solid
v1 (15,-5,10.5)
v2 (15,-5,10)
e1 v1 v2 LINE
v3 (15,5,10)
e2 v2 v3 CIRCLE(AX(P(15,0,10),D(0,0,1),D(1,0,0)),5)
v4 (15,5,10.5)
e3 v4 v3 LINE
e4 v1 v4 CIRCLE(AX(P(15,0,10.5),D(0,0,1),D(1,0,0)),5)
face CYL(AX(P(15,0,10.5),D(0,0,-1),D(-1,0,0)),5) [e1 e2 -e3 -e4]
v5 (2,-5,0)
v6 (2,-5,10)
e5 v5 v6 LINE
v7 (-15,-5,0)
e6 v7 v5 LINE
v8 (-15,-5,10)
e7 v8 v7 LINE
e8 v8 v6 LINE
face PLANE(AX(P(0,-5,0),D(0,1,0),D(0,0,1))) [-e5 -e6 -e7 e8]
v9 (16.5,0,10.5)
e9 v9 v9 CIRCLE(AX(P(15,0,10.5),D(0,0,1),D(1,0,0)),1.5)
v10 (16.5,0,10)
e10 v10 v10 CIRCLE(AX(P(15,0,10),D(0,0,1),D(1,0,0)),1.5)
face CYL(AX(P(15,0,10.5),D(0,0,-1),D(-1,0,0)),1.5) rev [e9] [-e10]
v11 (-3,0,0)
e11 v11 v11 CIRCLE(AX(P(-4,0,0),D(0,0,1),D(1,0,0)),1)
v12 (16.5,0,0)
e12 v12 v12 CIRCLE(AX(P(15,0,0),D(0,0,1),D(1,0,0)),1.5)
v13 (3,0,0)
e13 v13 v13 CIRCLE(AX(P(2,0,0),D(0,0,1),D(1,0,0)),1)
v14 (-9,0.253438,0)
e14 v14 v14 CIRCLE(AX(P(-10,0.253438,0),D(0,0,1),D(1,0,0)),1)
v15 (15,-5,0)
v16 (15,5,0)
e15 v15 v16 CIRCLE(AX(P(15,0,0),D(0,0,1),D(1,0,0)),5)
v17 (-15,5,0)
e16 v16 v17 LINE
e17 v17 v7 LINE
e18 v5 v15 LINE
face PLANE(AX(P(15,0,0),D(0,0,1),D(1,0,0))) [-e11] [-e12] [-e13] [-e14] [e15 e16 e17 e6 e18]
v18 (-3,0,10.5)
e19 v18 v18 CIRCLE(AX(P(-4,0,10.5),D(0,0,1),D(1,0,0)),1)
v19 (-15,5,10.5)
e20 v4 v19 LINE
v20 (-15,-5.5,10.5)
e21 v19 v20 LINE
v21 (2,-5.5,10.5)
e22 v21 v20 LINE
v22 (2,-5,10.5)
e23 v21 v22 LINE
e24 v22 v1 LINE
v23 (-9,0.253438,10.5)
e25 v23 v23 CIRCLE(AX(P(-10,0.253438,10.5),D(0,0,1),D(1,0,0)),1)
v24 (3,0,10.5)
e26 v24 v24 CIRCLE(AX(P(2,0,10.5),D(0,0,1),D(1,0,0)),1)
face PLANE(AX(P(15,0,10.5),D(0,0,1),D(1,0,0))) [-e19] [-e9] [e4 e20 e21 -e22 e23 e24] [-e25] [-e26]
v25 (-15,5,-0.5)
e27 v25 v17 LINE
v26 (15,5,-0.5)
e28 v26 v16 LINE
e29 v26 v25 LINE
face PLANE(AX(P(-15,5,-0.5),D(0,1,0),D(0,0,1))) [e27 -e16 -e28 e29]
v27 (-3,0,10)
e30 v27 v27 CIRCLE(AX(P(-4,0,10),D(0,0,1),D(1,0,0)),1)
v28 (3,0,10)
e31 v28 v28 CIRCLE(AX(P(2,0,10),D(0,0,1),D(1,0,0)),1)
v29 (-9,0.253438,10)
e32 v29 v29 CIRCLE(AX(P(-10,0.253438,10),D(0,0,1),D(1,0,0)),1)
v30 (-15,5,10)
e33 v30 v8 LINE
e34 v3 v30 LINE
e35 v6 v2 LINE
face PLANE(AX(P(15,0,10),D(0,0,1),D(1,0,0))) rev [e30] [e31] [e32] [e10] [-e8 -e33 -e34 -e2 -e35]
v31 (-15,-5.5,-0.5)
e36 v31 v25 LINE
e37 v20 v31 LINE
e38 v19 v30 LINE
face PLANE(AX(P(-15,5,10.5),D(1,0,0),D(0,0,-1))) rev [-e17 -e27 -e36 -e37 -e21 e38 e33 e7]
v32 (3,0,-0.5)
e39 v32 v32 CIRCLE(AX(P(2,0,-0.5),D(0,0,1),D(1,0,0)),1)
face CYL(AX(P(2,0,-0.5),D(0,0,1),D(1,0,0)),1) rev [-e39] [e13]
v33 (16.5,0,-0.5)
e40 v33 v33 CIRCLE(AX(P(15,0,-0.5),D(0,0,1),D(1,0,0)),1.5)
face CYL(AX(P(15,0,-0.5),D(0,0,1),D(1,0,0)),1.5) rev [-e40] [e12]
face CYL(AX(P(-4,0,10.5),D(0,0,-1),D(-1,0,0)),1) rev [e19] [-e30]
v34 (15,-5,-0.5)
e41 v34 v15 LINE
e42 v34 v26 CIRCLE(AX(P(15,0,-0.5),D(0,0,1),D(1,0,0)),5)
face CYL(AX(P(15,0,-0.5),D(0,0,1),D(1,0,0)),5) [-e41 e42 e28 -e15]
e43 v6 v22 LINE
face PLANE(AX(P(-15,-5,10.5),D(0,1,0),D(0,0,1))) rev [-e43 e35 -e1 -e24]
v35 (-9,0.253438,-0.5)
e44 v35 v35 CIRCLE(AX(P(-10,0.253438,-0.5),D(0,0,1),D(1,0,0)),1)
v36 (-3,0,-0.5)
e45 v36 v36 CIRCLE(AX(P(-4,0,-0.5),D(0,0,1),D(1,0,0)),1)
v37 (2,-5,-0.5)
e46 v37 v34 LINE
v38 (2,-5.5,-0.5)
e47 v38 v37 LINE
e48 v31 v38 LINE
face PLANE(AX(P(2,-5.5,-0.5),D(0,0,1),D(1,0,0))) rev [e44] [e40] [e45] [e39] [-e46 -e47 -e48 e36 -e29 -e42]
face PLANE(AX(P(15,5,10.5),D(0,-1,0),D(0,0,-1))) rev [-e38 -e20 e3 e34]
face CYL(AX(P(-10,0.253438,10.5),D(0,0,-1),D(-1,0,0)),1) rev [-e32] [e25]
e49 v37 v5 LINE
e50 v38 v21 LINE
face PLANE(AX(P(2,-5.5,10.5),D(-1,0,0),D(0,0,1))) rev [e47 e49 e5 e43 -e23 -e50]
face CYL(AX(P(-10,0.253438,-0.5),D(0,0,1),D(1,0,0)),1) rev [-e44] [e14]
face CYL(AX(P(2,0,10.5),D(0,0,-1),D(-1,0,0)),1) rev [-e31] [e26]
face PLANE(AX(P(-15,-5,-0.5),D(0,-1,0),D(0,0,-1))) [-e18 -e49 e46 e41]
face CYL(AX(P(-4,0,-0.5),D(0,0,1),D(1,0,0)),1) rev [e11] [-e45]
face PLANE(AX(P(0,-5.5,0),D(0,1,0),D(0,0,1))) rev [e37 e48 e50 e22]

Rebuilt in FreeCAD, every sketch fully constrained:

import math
import FreeCAD as App
import Part
import Sketcher
from FreeCAD import Vector
Q = App.Units.Quantity

doc = App.newDocument("Part")
body = doc.addObject("PartDesign::Body", "Body")

# Sketch on XY plane
sketch1 = body.newObject("Sketcher::SketchObject", "Sketch")
sketch1.AttachmentSupport = (doc.getObject("XY_Plane"), [""])
sketch1.MapMode = "FlatFace"
sketch1.AttachmentOffset = App.Placement(Vector(0, 0, 10), App.Rotation())
sketch1.addGeometry(Part.LineSegment(Vector(15, 5, 0), Vector(-15, 5, 0)), False)
sketch1.addGeometry(Part.LineSegment(Vector(-15, 5, 0), Vector(-15, -5, 0)), False)
sketch1.addGeometry(Part.LineSegment(Vector(-15, -5, 0), Vector(15, -5, 0)), False)
sketch1.addGeometry(Part.ArcOfCircle(Part.Circle(Vector(15, 0, 0), Vector(0, 0, 1), 5), math.radians(-90), math.radians(90)), False)
sketch1.addGeometry(Part.Circle(Vector(-10, 0.3, 0), Vector(0, 0, 1), 1), False)
sketch1.addGeometry(Part.Circle(Vector(-4, 0, 0), Vector(0, 0, 1), 1), False)
sketch1.addGeometry(Part.Circle(Vector(2, 0, 0), Vector(0, 0, 1), 1), False)
sketch1.addGeometry(Part.Circle(Vector(15, 0, 0), Vector(0, 0, 1), 1.5), False)
sketch1.addConstraint(Sketcher.Constraint("Coincident", 0, 2, 1, 1))
sketch1.addConstraint(Sketcher.Constraint("Coincident", 1, 2, 2, 1))
sketch1.addConstraint(Sketcher.Constraint("Tangent", 2, 2, 3, 1))
sketch1.addConstraint(Sketcher.Constraint("Tangent", 3, 2, 0, 1))
sketch1.addConstraint(Sketcher.Constraint("Horizontal", 0))
sketch1.addConstraint(Sketcher.Constraint("Vertical", 1))
sketch1.addConstraint(Sketcher.Constraint("Horizontal", 2))
sketch1.addConstraint(Sketcher.Constraint("Coincident", 7, 3, 3, 3))
sketch1.addConstraint(Sketcher.Constraint("Equal", 4, 5))
sketch1.addConstraint(Sketcher.Constraint("Equal", 5, 6))
sketch1.addConstraint(Sketcher.Constraint("Symmetric", 0, 2, 2, 2, -1, 1))
sketch1.addConstraint(Sketcher.Constraint("PointOnObject", 5, 3, -1))
sketch1.addConstraint(Sketcher.Constraint("PointOnObject", 6, 3, -1))
sketch1.addConstraint(Sketcher.Constraint("Diameter", 4, Q("2 mm")))
sketch1.addConstraint(Sketcher.Constraint("Diameter", 7, Q("3 mm")))
sketch1.addConstraint(Sketcher.Constraint("Radius", 3, Q("5 mm")))
sketch1.addConstraint(Sketcher.Constraint("DistanceX", 0, 2, 0, 1, Q("30 mm")))
sketch1.addConstraint(Sketcher.Constraint("DistanceX", 4, 3, -1, 1, Q("10 mm")))
sketch1.addConstraint(Sketcher.Constraint("DistanceX", 5, 3, -1, 1, Q("4 mm")))
sketch1.addConstraint(Sketcher.Constraint("DistanceX", -1, 1, 6, 3, Q("2 mm")))
sketch1.addConstraint(Sketcher.Constraint("DistanceY", -1, 1, 4, 3, Q("0.253438 mm")))
pad1 = body.newObject("PartDesign::Pad", "Pad")
pad1.Profile = sketch1
pad1.Length = 0.5
body2 = doc.addObject("PartDesign::Body", "Body001")

# Sketch on XY plane
sketch2 = body2.newObject("Sketcher::SketchObject", "Sketch001")
sketch2.AttachmentSupport = (doc.getObject("XY_Plane001"), [""])
sketch2.MapMode = "FlatFace"
sketch2.addGeometry(Part.LineSegment(Vector(15, 5, 0), Vector(-15, 5, 0)), False)
sketch2.addGeometry(Part.LineSegment(Vector(-15, 5, 0), Vector(-15, -5, 0)), False)
sketch2.addGeometry(Part.LineSegment(Vector(-15, -5, 0), Vector(15, -5, 0)), False)
sketch2.addGeometry(Part.ArcOfCircle(Part.Circle(Vector(15, 0, 0), Vector(0, 0, 1), 5), math.radians(-90), math.radians(90)), False)
sketch2.addGeometry(Part.Circle(Vector(15, 0, 0), Vector(0, 0, 1), 1.5), False)
sketch2.addGeometry(Part.Circle(Vector(2, 0, 0), Vector(0, 0, 1), 1), False)
sketch2.addGeometry(Part.Circle(Vector(-4, 0, 0), Vector(0, 0, 1), 1), False)
sketch2.addGeometry(Part.Circle(Vector(-10, 0.3, 0), Vector(0, 0, 1), 1), False)
sketch2.addConstraint(Sketcher.Constraint("Coincident", 0, 2, 1, 1))
sketch2.addConstraint(Sketcher.Constraint("Coincident", 1, 2, 2, 1))
sketch2.addConstraint(Sketcher.Constraint("Tangent", 2, 2, 3, 1))
sketch2.addConstraint(Sketcher.Constraint("Tangent", 3, 2, 0, 1))
sketch2.addConstraint(Sketcher.Constraint("Horizontal", 0))
sketch2.addConstraint(Sketcher.Constraint("Vertical", 1))
sketch2.addConstraint(Sketcher.Constraint("Horizontal", 2))
sketch2.addConstraint(Sketcher.Constraint("Coincident", 4, 3, 3, 3))
sketch2.addConstraint(Sketcher.Constraint("Equal", 5, 6))
sketch2.addConstraint(Sketcher.Constraint("Equal", 6, 7))
sketch2.addConstraint(Sketcher.Constraint("Symmetric", 0, 2, 2, 2, -1, 1))
sketch2.addConstraint(Sketcher.Constraint("PointOnObject", 5, 3, -1))
sketch2.addConstraint(Sketcher.Constraint("PointOnObject", 6, 3, -1))
sketch2.addConstraint(Sketcher.Constraint("Diameter", 4, Q("3 mm")))
sketch2.addConstraint(Sketcher.Constraint("Diameter", 5, Q("2 mm")))
sketch2.addConstraint(Sketcher.Constraint("Radius", 3, Q("5 mm")))
sketch2.addConstraint(Sketcher.Constraint("DistanceX", 0, 2, 0, 1, Q("30 mm")))
sketch2.addConstraint(Sketcher.Constraint("DistanceX", -1, 1, 5, 3, Q("2 mm")))
sketch2.addConstraint(Sketcher.Constraint("DistanceX", 6, 3, -1, 1, Q("4 mm")))
sketch2.addConstraint(Sketcher.Constraint("DistanceX", 7, 3, -1, 1, Q("10 mm")))
sketch2.addConstraint(Sketcher.Constraint("DistanceY", -1, 1, 7, 3, Q("0.253438 mm")))
pad2 = body2.newObject("PartDesign::Pad", "Pad001")
pad2.Profile = sketch2
pad2.Length = 0.5
pad2.Reversed = True
body.AllowCompound = True
doc.recompute()

boolean = body.newObject("PartDesign::Boolean", "Boolean")
boolean.Type = "Fuse"
boolean.addObjects([body2])

# Sketch on XZ plane
sketch3 = body.newObject("Sketcher::SketchObject", "Sketch002")
sketch3.AttachmentSupport = (doc.getObject("XZ_Plane"), [""])
sketch3.MapMode = "FlatFace"
sketch3.AttachmentOffset = App.Placement(Vector(0, 0, 5), App.Rotation())
sketch3.addGeometry(Part.LineSegment(Vector(2, 0, 0), Vector(2, 10, 0)), False)
sketch3.addGeometry(Part.LineSegment(Vector(2, 10, 0), Vector(-15, 10, 0)), False)
sketch3.addGeometry(Part.LineSegment(Vector(-15, 10, 0), Vector(-15, 0, 0)), False)
sketch3.addGeometry(Part.LineSegment(Vector(-15, 0, 0), Vector(2, 0, 0)), False)
sketch3.addConstraint(Sketcher.Constraint("Coincident", 0, 2, 1, 1))
sketch3.addConstraint(Sketcher.Constraint("Coincident", 1, 2, 2, 1))
sketch3.addConstraint(Sketcher.Constraint("Coincident", 2, 2, 3, 1))
sketch3.addConstraint(Sketcher.Constraint("Coincident", 3, 2, 0, 1))
sketch3.addConstraint(Sketcher.Constraint("Vertical", 0))
sketch3.addConstraint(Sketcher.Constraint("Horizontal", 1))
sketch3.addConstraint(Sketcher.Constraint("Vertical", 2))
sketch3.addConstraint(Sketcher.Constraint("Horizontal", 3))
sketch3.addConstraint(Sketcher.Constraint("DistanceX", 1, 2, 1, 1, Q("17 mm")))
sketch3.addConstraint(Sketcher.Constraint("DistanceY", 0, 1, 0, 2, Q("11 mm")))
sketch3.addConstraint(Sketcher.Constraint("DistanceX", -1, 1, 0, 2, Q("2 mm")))
sketch3.addConstraint(Sketcher.Constraint("DistanceY", -1, 1, 0, 2, Q("10.5 mm")))
pad3 = body.newObject("PartDesign::Pad", "Pad002")
pad3.Profile = sketch3
pad3.Length = 0.5

doc.recompute()
